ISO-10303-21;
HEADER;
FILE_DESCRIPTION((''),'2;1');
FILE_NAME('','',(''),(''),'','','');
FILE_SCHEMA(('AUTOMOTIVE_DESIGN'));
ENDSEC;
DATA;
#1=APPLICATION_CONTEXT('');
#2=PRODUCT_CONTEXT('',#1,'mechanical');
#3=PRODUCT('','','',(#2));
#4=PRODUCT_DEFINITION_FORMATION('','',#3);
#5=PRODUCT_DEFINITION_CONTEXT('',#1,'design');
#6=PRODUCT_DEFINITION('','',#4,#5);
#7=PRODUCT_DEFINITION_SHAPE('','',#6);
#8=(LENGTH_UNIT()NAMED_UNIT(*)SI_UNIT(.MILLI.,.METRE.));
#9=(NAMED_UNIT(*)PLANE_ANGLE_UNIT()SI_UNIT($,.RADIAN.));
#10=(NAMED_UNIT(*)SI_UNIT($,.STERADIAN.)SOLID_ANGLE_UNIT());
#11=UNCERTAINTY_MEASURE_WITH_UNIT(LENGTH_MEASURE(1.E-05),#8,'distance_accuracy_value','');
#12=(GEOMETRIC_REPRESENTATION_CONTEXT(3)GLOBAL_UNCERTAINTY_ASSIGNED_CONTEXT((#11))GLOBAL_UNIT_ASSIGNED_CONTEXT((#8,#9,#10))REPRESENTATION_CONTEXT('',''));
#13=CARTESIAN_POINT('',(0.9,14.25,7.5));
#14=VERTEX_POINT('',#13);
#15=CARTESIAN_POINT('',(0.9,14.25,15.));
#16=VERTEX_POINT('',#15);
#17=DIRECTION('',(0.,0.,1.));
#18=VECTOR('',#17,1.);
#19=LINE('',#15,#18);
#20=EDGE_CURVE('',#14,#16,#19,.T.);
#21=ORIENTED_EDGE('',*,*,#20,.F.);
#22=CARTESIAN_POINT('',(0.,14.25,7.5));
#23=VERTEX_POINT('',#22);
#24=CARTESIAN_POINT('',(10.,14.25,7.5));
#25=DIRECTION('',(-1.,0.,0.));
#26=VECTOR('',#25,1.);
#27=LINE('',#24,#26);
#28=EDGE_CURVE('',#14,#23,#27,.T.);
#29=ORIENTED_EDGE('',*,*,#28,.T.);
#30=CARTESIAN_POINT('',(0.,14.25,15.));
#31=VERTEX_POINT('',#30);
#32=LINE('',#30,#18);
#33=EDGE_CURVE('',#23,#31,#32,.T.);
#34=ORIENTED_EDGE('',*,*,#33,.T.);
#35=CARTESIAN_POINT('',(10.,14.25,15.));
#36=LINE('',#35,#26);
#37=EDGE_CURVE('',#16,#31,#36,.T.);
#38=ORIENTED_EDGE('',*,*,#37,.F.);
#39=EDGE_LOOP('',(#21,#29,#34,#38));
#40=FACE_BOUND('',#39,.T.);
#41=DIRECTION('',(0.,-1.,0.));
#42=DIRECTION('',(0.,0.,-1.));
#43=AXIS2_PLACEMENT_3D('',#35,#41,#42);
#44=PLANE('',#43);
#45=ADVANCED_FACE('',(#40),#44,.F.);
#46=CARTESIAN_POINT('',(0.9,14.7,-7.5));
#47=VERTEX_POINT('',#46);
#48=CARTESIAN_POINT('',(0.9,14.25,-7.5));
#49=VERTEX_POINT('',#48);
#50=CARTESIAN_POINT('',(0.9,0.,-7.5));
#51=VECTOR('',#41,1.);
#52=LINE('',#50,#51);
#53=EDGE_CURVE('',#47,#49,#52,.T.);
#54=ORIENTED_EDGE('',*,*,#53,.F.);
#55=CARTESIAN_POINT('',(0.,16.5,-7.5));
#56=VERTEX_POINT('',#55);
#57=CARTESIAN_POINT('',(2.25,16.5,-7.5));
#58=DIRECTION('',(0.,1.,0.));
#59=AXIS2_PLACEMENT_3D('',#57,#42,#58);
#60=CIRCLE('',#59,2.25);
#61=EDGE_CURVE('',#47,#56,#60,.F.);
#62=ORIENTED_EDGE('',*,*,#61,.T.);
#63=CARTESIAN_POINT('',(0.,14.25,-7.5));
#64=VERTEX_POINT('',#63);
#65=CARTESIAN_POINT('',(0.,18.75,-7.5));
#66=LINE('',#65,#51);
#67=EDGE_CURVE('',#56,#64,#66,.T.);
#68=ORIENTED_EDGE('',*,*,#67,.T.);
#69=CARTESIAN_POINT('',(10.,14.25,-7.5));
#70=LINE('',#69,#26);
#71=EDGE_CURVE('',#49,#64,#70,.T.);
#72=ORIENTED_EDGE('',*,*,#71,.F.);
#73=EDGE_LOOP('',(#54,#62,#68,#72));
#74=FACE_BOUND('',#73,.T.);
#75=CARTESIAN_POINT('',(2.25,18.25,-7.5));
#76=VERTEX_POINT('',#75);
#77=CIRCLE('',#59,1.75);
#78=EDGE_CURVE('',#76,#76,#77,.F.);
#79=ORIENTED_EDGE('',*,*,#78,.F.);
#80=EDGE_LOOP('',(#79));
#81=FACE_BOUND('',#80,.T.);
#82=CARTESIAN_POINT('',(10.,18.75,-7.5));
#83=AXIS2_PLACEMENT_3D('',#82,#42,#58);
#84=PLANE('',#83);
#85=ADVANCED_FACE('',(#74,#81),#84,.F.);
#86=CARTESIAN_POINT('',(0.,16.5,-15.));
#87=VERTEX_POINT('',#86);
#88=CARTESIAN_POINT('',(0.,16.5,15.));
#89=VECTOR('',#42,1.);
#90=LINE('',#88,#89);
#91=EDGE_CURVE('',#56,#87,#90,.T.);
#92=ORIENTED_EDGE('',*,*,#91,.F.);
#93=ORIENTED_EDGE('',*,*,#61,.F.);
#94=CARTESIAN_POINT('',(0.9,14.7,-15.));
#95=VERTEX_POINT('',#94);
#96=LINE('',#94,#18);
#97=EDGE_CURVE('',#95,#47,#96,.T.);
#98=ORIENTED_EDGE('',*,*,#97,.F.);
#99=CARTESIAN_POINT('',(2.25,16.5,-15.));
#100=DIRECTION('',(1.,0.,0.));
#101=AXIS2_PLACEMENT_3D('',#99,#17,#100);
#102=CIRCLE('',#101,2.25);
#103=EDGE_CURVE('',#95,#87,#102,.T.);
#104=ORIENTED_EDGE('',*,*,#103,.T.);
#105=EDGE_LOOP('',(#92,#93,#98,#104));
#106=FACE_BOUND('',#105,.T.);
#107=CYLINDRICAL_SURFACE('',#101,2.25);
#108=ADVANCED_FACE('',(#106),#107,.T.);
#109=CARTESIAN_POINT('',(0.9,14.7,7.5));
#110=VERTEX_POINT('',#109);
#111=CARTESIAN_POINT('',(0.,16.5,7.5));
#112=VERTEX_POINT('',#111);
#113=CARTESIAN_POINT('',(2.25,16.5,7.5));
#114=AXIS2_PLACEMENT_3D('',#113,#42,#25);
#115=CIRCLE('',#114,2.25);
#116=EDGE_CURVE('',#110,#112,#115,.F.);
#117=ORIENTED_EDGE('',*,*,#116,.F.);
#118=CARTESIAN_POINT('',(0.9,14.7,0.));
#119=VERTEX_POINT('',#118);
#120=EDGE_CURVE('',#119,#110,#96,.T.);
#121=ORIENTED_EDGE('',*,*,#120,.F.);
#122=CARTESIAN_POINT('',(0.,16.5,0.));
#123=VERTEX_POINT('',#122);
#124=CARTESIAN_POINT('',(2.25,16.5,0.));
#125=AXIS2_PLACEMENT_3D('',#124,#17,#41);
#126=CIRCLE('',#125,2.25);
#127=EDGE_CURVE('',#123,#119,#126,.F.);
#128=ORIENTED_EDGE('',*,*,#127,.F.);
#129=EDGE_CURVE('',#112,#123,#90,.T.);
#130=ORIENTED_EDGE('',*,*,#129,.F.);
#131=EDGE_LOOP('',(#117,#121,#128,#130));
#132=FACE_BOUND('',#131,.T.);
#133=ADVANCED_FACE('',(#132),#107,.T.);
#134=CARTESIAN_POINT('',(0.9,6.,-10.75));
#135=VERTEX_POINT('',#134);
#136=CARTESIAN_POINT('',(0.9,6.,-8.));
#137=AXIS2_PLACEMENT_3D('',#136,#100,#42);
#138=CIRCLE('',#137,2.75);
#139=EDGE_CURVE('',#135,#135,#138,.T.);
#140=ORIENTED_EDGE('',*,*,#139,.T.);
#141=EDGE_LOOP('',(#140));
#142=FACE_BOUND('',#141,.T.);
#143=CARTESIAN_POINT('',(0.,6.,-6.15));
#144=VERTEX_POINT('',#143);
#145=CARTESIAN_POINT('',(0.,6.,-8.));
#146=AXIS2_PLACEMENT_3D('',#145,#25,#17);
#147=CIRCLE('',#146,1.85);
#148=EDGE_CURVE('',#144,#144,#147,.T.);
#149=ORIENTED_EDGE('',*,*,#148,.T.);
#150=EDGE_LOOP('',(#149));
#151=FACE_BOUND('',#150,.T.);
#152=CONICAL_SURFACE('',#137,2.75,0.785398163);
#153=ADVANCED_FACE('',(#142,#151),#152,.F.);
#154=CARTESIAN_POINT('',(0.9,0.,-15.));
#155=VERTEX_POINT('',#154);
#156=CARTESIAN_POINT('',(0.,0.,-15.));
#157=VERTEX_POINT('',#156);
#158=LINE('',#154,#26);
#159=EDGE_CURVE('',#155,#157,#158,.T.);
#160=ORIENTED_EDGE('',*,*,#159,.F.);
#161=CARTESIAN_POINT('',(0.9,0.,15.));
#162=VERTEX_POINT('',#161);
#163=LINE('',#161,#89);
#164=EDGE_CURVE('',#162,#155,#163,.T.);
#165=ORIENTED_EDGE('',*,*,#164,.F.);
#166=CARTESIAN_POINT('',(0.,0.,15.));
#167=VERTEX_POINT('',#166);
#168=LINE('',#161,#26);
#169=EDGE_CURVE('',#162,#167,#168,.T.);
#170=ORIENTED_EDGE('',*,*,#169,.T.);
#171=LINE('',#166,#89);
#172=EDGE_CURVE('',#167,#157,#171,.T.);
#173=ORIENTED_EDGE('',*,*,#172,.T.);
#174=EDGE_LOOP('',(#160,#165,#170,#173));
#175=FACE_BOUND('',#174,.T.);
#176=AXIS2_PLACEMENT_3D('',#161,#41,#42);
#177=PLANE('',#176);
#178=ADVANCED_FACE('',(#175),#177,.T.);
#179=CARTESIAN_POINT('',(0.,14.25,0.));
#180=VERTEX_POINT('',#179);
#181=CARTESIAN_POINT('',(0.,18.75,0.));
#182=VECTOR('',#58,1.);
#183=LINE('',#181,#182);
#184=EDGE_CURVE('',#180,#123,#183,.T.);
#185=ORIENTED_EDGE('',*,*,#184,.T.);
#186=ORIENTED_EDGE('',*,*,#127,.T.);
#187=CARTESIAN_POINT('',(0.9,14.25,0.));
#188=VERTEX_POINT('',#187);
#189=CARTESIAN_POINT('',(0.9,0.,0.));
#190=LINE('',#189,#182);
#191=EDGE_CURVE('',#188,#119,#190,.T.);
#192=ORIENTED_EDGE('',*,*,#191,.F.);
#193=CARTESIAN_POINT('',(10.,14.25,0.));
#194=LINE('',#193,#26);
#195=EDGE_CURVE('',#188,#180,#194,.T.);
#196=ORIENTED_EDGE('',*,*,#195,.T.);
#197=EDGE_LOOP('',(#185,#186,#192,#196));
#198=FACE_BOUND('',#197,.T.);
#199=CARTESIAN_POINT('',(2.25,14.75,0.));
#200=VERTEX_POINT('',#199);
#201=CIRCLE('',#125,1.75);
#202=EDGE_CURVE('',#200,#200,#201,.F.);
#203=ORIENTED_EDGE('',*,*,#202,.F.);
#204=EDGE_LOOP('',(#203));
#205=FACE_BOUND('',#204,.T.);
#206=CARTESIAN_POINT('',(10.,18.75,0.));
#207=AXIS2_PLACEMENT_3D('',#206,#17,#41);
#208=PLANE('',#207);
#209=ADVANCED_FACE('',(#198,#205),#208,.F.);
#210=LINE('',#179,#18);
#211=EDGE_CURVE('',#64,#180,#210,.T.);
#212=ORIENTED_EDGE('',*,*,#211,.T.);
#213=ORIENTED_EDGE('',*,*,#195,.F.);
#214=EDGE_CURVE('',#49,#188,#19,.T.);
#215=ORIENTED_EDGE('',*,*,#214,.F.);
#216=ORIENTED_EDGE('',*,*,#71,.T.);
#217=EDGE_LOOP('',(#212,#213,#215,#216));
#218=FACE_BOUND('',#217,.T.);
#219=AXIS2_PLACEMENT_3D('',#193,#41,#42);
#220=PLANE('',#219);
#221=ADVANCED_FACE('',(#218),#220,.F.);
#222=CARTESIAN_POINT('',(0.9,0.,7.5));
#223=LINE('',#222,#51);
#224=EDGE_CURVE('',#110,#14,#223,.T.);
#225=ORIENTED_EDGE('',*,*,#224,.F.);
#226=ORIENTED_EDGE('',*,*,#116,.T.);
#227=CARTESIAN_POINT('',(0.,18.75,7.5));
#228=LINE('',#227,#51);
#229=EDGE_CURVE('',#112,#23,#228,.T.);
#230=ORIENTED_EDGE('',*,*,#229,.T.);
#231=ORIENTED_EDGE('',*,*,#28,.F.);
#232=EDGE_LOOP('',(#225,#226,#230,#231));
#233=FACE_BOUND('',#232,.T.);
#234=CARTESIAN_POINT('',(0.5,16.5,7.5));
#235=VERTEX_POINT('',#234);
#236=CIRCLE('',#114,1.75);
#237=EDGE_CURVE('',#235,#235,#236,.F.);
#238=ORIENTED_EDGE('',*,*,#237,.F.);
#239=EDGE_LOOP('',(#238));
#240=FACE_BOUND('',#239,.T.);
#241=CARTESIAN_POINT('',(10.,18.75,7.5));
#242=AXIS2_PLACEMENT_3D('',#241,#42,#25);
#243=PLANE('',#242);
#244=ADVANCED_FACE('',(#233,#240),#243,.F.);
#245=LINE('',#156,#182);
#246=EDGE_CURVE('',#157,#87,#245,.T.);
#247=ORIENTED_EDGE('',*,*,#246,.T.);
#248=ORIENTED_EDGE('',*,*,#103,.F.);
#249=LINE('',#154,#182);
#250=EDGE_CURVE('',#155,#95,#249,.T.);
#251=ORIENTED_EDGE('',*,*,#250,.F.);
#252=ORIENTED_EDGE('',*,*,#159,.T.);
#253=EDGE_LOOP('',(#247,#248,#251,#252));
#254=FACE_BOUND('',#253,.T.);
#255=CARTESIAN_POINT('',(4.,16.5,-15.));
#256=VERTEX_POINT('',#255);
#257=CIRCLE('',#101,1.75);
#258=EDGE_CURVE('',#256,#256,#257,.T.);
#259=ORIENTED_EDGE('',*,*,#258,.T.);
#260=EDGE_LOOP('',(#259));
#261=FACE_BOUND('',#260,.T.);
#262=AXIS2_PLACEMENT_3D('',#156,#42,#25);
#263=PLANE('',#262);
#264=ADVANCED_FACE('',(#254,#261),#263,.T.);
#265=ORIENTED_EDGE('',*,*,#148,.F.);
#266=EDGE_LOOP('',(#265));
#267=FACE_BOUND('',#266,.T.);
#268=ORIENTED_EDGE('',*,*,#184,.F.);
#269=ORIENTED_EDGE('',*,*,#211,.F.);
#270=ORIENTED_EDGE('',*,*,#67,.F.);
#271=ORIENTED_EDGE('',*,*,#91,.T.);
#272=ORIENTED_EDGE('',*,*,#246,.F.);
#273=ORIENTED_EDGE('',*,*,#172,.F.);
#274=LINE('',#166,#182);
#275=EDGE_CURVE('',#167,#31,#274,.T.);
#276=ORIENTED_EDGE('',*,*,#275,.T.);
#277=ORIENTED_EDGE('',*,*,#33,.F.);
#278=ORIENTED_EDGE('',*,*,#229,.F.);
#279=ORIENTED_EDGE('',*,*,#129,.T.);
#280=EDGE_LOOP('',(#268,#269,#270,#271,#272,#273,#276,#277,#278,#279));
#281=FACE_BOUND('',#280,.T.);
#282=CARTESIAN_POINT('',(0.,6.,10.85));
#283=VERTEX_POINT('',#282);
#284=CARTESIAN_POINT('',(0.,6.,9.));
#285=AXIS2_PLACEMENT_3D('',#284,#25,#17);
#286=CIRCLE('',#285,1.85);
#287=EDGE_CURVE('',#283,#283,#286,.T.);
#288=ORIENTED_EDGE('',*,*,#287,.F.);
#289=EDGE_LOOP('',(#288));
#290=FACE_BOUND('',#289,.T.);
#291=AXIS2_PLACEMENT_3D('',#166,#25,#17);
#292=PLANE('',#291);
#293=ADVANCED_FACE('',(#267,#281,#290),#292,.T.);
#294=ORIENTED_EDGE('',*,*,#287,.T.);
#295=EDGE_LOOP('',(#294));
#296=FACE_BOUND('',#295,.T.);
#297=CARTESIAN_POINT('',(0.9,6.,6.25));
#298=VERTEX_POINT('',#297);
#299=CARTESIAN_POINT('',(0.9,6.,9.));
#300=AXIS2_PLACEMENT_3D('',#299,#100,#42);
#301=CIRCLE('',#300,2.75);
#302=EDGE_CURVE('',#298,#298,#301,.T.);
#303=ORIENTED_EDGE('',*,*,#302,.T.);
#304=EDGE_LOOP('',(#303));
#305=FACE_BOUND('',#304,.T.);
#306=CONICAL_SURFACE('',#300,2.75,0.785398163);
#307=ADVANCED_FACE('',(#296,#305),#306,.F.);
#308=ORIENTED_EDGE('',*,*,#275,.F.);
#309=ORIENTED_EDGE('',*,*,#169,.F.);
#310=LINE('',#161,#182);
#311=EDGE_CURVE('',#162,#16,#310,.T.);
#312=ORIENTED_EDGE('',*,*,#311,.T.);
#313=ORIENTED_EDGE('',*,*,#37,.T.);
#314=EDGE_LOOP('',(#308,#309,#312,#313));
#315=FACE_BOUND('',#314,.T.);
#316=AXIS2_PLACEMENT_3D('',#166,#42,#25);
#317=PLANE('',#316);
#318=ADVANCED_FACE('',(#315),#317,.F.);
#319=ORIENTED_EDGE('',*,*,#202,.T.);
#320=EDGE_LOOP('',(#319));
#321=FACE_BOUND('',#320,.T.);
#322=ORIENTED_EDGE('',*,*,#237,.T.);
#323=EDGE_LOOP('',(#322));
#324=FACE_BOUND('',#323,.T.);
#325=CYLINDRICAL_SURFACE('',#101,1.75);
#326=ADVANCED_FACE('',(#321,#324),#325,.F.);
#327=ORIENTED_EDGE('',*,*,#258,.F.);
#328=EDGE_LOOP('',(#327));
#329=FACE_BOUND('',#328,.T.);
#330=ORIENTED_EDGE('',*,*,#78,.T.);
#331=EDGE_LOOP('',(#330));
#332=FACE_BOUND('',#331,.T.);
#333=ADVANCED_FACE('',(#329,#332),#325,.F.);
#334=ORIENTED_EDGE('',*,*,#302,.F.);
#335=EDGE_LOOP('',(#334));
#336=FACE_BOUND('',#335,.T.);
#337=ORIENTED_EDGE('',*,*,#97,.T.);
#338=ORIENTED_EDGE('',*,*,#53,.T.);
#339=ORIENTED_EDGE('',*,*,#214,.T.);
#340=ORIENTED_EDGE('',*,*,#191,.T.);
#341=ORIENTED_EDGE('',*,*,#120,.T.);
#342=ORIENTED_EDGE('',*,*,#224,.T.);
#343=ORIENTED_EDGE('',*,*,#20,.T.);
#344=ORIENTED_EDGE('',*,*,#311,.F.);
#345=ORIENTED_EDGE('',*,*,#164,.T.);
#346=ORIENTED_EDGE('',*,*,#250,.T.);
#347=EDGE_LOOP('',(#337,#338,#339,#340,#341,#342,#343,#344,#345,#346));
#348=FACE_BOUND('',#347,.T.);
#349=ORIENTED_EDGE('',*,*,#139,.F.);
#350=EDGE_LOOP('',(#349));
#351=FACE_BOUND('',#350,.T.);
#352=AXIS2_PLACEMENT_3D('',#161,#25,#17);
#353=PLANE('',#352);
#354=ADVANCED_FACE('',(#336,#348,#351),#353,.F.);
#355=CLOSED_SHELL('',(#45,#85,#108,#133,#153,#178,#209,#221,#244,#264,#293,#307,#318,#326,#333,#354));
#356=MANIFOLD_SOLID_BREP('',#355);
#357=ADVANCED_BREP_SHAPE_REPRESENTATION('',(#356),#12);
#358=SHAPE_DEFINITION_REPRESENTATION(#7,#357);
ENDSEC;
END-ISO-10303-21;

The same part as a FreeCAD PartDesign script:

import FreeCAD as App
import Part
import Sketcher
from FreeCAD import Vector
Q = App.Units.Quantity


def add_polygon(sketch, points):
    """Adds a closed chain of lines whose ends are joined by coincident constraints."""
    first, n = sketch.GeometryCount, len(points)
    for a, b in zip(points, points[1:] + points[:1]):
        sketch.addGeometry(Part.LineSegment(App.Vector(*a, 0), App.Vector(*b, 0)), False)
    for i in range(n):
        sketch.addConstraint(Sketcher.Constraint("Coincident", first + i, 2, first + (i + 1) % n, 1))

doc = App.newDocument("Part")
params = doc.addObject("Spreadsheet::Sheet", "Params")
for row, (alias, value) in enumerate([
    ("sketch1_width", "0.9 mm"),
    ("sketch1_height", "16.5 mm"),
    ("pad1_length", "30 mm"),
    ("sketch2_diameter", "4.5 mm"),
    ("sketch3_height", "30 mm"),
    ("sketch4_diameter", "3.5 mm"),
    ("sketch5_width", "4.5 mm"),
    ("sketch5_height", "7.5 mm"),
    ("pocket2_length", "10 mm"),
    ("sketch6_width", "0.9 mm"),
    ("sketch6_width2", "0.4 mm"),
    ("sketch6_height", "2.75 mm"),
    ("groove_angle", "360 deg"),
    ("linearpattern_pitch", "17 mm"),
], start=1):
    params.set(f"A{row}", alias)
    params.set(f"B{row}", "=" + value)
    params.setAlias(f"B{row}", alias)

body = doc.addObject("PartDesign::Body", "Body")

sketch1 = doc.addObject("Sketcher::SketchObject", "Sketch")
body.addObject(sketch1)
sketch1.AttachmentSupport = (doc.XY_Plane, [""])
sketch1.MapMode = "FlatFace"
add_polygon(sketch1, [(0, 16.5), (0, 0), (0.9, 0), (0.9, 16.5)])
sketch1.addConstraint(Sketcher.Constraint("Vertical", 0))
sketch1.addConstraint(Sketcher.Constraint("Horizontal", 1))
sketch1.addConstraint(Sketcher.Constraint("Vertical", 2))
sketch1.addConstraint(Sketcher.Constraint("Horizontal", 3))
sketch1.addConstraint(Sketcher.Constraint("Coincident", 0, 2, -1, 1))
sketch1.addConstraint(Sketcher.Constraint("DistanceX", 1, 1, 1, 2, 0.9))
sketch1.addConstraint(Sketcher.Constraint("DistanceY", 0, 2, 0, 1, 16.5))
sketch1.setExpression("Constraints[9]", "Params.sketch1_width")
sketch1.setExpression("Constraints[10]", "Params.sketch1_height")
pad1 = doc.addObject("PartDesign::Pad", "Pad")
body.addObject(pad1)
pad1.Profile = sketch1
pad1.setExpression("Length", "Params.pad1_length")
pad1.Midplane = True

sketch2 = doc.addObject("Sketcher::SketchObject", "Sketch001")
body.addObject(sketch2)
sketch2.AttachmentSupport = (doc.XY_Plane, [""])
sketch2.MapMode = "FlatFace"
sketch2.AttachmentOffset = App.Placement(Vector(0, 0, 15), App.Rotation())
sketch2.addGeometry(Part.Circle(Vector(2.2, 16.5, 0), Vector(0, 0, 1), 2.2), False)
sketch2.addConstraint(Sketcher.Constraint("Diameter", 0, 4.5))
sketch2.addConstraint(Sketcher.Constraint("DistanceY", -1, 1, 0, 3, 16.5))
sketch2.addConstraint(Sketcher.Constraint("DistanceX", -1, 1, 0, 3, 2.25))
sketch2.setExpression("Constraints[0]", "Params.sketch2_diameter")

sketch3 = doc.addObject("Sketcher::SketchObject", "Sketch002")
body.addObject(sketch3)
sketch3.AttachmentSupport = (doc.XZ_Plane, [""])
sketch3.MapMode = "FlatFace"
sketch3.AttachmentOffset = App.Placement(Vector(0, 0, -16.5), App.Rotation())
sketch3.addGeometry(Part.LineSegment(Vector(1, 15, 0), Vector(1, -15, 0)), False)
sketch3.addConstraint(Sketcher.Constraint("Vertical", 0))
sketch3.addConstraint(Sketcher.Constraint("DistanceY", 0, 2, 0, 1, 30.0))
sketch3.addConstraint(Sketcher.Constraint("DistanceY", -1, 1, 0, 1, 15.0))
sketch3.addConstraint(Sketcher.Constraint("DistanceX", -1, 1, 0, 1, 0.9))
sketch3.setExpression("Constraints[1]", "Params.sketch3_height")
doc.recompute()

additivepipe = doc.addObject("PartDesign::AdditivePipe", "AdditivePipe")
body.addObject(additivepipe)
additivepipe.Profile = sketch2
additivepipe.Spine = (sketch3, ["Edge1"])

sketch4 = doc.addObject("Sketcher::SketchObject", "Sketch003")
body.addObject(sketch4)
sketch4.AttachmentSupport = (doc.XY_Plane, [""])
sketch4.MapMode = "FlatFace"
sketch4.AttachmentOffset = App.Placement(Vector(0, 0, 15), App.Rotation())
sketch4.addGeometry(Part.Circle(Vector(2.2, 16.5, 0), Vector(0, 0, 1), 1.8), False)
sketch4.addConstraint(Sketcher.Constraint("Diameter", 0, 3.5))
sketch4.addConstraint(Sketcher.Constraint("DistanceY", -1, 1, 0, 3, 16.5))
sketch4.addConstraint(Sketcher.Constraint("DistanceX", -1, 1, 0, 3, 2.25))
sketch4.setExpression("Constraints[0]", "Params.sketch4_diameter")
pocket1 = doc.addObject("PartDesign::Pocket", "Pocket")
body.addObject(pocket1)
pocket1.Profile = sketch4
pocket1.Type = "ThroughAll"

sketch5 = doc.addObject("Sketcher::SketchObject", "Sketch004")
body.addObject(sketch5)
sketch5.AttachmentSupport = (doc.YZ_Plane, [""])
sketch5.MapMode = "FlatFace"
add_polygon(sketch5, [(18.8, 7.5), (14.2, 7.5), (14.2, 15), (18.8, 15)])
add_polygon(sketch5, [(18.8, -7.5), (14.2, -7.5), (14.2, 0), (18.8, 0)])
sketch5.addConstraint(Sketcher.Constraint("Horizontal", 0))
sketch5.addConstraint(Sketcher.Constraint("Vertical", 1))
sketch5.addConstraint(Sketcher.Constraint("Horizontal", 2))
sketch5.addConstraint(Sketcher.Constraint("Vertical", 3))
sketch5.addConstraint(Sketcher.Constraint("Horizontal", 4))
sketch5.addConstraint(Sketcher.Constraint("Vertical", 5))
sketch5.addConstraint(Sketcher.Constraint("Horizontal", 6))
sketch5.addConstraint(Sketcher.Constraint("Vertical", 7))
sketch5.addConstraint(Sketcher.Constraint("Symmetric", 0, 2, 4, 2, -1))
sketch5.addConstraint(Sketcher.Constraint("PointOnObject", 5, 2, -1))
sketch5.addConstraint(Sketcher.Constraint("Vertical", 3, 2, 6, 2))
sketch5.addConstraint(Sketcher.Constraint("Equal", 3, 5))
sketch5.addConstraint(Sketcher.Constraint("DistanceX", 0, 2, 0, 1, 4.5))
sketch5.addConstraint(Sketcher.Constraint("DistanceY", 1, 1, 1, 2, 7.5))
sketch5.addConstraint(Sketcher.Constraint("DistanceX", -1, 1, 0, 2, 14.25))
sketch5.setExpression("Constraints[20]", "Params.sketch5_width")
sketch5.setExpression("Constraints[21]", "Params.sketch5_height")
pocket2 = doc.addObject("PartDesign::Pocket", "Pocket001")
body.addObject(pocket2)
pocket2.Profile = sketch5
pocket2.setExpression("Length", "Params.pocket2_length")
pocket2.Reversed = True

sketch6 = doc.addObject("Sketcher::SketchObject", "Sketch005")
body.addObject(sketch6)
sketch6.AttachmentSupport = (doc.XZ_Plane, [""])
sketch6.MapMode = "FlatFace"
sketch6.AttachmentOffset = App.Placement(Vector(0, 0, -6), App.Rotation())
add_polygon(sketch6, [(0, 9), (0.9, 9), (0.9, 6.25), (-0.4, 7.55), (0, 7.55)])
sketch6.addGeometry(Part.LineSegment(Vector(0.9, 9, 0), Vector(-0.4, 9, 0)), True)
sketch6.addConstraint(Sketcher.Constraint("Horizontal", 0))
sketch6.addConstraint(Sketcher.Constraint("Vertical", 1))
sketch6.addConstraint(Sketcher.Constraint("Horizontal", 3))
sketch6.addConstraint(Sketcher.Constraint("Vertical", 4))
sketch6.addConstraint(Sketcher.Constraint("Horizontal", 5))
sketch6.addConstraint(Sketcher.Constraint("Coincident", 5, 1, 0, 2))
sketch6.addConstraint(Sketcher.Constraint("PointOnObject", 3, 2, -2))
sketch6.addConstraint(Sketcher.Constraint("Vertical", 2, 2, 5, 2))
sketch6.addConstraint(Sketcher.Constraint("Angle", 2, Q("135 deg")))
sketch6.addConstraint(Sketcher.Constraint("DistanceX", 0, 1, 0, 2, 0.9))
sketch6.addConstraint(Sketcher.Constraint("DistanceX", 3, 1, 3, 2, 0.4))
sketch6.addConstraint(Sketcher.Constraint("DistanceY", -1, 1, 0, 2, 9.0))
sketch6.addConstraint(Sketcher.Constraint("DistanceY", 1, 2, 1, 1, 2.75))
sketch6.setExpression("Constraints[14]", "Params.sketch6_width")
sketch6.setExpression("Constraints[15]", "Params.sketch6_width2")
sketch6.setExpression("Constraints[17]", "Params.sketch6_height")
groove = doc.addObject("PartDesign::Groove", "Groove")
body.addObject(groove)
groove.Profile = sketch6
groove.ReferenceAxis = (sketch6, ["Axis0"])
groove.setExpression("Angle", "Params.groove_angle")
doc.recompute()

linearpattern = doc.addObject("PartDesign::LinearPattern", "LinearPattern")
body.addObject(linearpattern)
linearpattern.Originals = [groove]
linearpattern.Direction = (doc.Z_Axis, [""])
linearpattern.Mode = "offset"
linearpattern.setExpression("Offset", "Params.linearpattern_pitch")
linearpattern.Occurrences = 2
linearpattern.Reversed = True
body.Tip = linearpattern

doc.recompute()
